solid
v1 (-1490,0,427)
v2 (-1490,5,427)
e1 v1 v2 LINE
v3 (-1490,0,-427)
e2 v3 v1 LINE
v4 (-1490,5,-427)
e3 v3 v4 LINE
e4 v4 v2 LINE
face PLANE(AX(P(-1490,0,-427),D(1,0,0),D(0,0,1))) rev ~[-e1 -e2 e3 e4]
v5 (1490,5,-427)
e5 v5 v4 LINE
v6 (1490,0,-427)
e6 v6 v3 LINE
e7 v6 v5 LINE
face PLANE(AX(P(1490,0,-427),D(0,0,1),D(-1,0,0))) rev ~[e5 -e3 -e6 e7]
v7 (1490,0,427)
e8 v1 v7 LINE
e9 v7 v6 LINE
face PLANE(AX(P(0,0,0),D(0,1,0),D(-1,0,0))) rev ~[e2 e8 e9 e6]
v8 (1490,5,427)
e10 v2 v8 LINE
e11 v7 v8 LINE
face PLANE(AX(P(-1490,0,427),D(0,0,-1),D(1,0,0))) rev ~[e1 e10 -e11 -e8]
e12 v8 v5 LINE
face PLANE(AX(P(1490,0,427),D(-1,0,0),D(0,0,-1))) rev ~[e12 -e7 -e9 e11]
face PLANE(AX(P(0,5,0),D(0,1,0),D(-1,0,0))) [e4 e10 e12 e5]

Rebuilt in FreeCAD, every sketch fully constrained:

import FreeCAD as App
import Part
import Sketcher
from FreeCAD import Vector
Q = App.Units.Quantity


def add_polygon(sketch, points):
    """Adds a closed chain of lines whose ends are joined by coincident constraints."""
    first, n = sketch.GeometryCount, len(points)
    for a, b in zip(points, points[1:] + points[:1]):
        sketch.addGeometry(Part.LineSegment(App.Vector(*a, 0), App.Vector(*b, 0)), False)
    for i in range(n):
        sketch.addConstraint(Sketcher.Constraint("Coincident", first + i, 2, first + (i + 1) % n, 1))

doc = App.newDocument("Part")
body = doc.addObject("PartDesign::Body", "Body")

# Sketch on XZ plane
sketch1 = body.newObject("Sketcher::SketchObject", "Sketch")
sketch1.AttachmentSupport = (doc.getObject("XZ_Plane"), [""])
sketch1.MapMode = "FlatFace"
add_polygon(sketch1, [(-1490, -427), (-1490, 427), (1490, 427), (1490, -427)])  # lines 0-3
sketch1.addConstraint(Sketcher.Constraint("Vertical", 0))
sketch1.addConstraint(Sketcher.Constraint("Horizontal", 1))
sketch1.addConstraint(Sketcher.Constraint("Vertical", 2))
sketch1.addConstraint(Sketcher.Constraint("Horizontal", 3))
sketch1.addConstraint(Sketcher.Constraint("Symmetric", 0, 2, 2, 2, -1, 1))
sketch1.addConstraint(Sketcher.Constraint("DistanceX", 1, 1, 1, 2, Q("2980 mm")))
sketch1.addConstraint(Sketcher.Constraint("DistanceY", 0, 1, 0, 2, Q("854 mm")))
pad1 = body.newObject("PartDesign::Pad", "Pad")
pad1.Profile = sketch1
pad1.Length = 5
pad1.Reversed = True

doc.recompute()
